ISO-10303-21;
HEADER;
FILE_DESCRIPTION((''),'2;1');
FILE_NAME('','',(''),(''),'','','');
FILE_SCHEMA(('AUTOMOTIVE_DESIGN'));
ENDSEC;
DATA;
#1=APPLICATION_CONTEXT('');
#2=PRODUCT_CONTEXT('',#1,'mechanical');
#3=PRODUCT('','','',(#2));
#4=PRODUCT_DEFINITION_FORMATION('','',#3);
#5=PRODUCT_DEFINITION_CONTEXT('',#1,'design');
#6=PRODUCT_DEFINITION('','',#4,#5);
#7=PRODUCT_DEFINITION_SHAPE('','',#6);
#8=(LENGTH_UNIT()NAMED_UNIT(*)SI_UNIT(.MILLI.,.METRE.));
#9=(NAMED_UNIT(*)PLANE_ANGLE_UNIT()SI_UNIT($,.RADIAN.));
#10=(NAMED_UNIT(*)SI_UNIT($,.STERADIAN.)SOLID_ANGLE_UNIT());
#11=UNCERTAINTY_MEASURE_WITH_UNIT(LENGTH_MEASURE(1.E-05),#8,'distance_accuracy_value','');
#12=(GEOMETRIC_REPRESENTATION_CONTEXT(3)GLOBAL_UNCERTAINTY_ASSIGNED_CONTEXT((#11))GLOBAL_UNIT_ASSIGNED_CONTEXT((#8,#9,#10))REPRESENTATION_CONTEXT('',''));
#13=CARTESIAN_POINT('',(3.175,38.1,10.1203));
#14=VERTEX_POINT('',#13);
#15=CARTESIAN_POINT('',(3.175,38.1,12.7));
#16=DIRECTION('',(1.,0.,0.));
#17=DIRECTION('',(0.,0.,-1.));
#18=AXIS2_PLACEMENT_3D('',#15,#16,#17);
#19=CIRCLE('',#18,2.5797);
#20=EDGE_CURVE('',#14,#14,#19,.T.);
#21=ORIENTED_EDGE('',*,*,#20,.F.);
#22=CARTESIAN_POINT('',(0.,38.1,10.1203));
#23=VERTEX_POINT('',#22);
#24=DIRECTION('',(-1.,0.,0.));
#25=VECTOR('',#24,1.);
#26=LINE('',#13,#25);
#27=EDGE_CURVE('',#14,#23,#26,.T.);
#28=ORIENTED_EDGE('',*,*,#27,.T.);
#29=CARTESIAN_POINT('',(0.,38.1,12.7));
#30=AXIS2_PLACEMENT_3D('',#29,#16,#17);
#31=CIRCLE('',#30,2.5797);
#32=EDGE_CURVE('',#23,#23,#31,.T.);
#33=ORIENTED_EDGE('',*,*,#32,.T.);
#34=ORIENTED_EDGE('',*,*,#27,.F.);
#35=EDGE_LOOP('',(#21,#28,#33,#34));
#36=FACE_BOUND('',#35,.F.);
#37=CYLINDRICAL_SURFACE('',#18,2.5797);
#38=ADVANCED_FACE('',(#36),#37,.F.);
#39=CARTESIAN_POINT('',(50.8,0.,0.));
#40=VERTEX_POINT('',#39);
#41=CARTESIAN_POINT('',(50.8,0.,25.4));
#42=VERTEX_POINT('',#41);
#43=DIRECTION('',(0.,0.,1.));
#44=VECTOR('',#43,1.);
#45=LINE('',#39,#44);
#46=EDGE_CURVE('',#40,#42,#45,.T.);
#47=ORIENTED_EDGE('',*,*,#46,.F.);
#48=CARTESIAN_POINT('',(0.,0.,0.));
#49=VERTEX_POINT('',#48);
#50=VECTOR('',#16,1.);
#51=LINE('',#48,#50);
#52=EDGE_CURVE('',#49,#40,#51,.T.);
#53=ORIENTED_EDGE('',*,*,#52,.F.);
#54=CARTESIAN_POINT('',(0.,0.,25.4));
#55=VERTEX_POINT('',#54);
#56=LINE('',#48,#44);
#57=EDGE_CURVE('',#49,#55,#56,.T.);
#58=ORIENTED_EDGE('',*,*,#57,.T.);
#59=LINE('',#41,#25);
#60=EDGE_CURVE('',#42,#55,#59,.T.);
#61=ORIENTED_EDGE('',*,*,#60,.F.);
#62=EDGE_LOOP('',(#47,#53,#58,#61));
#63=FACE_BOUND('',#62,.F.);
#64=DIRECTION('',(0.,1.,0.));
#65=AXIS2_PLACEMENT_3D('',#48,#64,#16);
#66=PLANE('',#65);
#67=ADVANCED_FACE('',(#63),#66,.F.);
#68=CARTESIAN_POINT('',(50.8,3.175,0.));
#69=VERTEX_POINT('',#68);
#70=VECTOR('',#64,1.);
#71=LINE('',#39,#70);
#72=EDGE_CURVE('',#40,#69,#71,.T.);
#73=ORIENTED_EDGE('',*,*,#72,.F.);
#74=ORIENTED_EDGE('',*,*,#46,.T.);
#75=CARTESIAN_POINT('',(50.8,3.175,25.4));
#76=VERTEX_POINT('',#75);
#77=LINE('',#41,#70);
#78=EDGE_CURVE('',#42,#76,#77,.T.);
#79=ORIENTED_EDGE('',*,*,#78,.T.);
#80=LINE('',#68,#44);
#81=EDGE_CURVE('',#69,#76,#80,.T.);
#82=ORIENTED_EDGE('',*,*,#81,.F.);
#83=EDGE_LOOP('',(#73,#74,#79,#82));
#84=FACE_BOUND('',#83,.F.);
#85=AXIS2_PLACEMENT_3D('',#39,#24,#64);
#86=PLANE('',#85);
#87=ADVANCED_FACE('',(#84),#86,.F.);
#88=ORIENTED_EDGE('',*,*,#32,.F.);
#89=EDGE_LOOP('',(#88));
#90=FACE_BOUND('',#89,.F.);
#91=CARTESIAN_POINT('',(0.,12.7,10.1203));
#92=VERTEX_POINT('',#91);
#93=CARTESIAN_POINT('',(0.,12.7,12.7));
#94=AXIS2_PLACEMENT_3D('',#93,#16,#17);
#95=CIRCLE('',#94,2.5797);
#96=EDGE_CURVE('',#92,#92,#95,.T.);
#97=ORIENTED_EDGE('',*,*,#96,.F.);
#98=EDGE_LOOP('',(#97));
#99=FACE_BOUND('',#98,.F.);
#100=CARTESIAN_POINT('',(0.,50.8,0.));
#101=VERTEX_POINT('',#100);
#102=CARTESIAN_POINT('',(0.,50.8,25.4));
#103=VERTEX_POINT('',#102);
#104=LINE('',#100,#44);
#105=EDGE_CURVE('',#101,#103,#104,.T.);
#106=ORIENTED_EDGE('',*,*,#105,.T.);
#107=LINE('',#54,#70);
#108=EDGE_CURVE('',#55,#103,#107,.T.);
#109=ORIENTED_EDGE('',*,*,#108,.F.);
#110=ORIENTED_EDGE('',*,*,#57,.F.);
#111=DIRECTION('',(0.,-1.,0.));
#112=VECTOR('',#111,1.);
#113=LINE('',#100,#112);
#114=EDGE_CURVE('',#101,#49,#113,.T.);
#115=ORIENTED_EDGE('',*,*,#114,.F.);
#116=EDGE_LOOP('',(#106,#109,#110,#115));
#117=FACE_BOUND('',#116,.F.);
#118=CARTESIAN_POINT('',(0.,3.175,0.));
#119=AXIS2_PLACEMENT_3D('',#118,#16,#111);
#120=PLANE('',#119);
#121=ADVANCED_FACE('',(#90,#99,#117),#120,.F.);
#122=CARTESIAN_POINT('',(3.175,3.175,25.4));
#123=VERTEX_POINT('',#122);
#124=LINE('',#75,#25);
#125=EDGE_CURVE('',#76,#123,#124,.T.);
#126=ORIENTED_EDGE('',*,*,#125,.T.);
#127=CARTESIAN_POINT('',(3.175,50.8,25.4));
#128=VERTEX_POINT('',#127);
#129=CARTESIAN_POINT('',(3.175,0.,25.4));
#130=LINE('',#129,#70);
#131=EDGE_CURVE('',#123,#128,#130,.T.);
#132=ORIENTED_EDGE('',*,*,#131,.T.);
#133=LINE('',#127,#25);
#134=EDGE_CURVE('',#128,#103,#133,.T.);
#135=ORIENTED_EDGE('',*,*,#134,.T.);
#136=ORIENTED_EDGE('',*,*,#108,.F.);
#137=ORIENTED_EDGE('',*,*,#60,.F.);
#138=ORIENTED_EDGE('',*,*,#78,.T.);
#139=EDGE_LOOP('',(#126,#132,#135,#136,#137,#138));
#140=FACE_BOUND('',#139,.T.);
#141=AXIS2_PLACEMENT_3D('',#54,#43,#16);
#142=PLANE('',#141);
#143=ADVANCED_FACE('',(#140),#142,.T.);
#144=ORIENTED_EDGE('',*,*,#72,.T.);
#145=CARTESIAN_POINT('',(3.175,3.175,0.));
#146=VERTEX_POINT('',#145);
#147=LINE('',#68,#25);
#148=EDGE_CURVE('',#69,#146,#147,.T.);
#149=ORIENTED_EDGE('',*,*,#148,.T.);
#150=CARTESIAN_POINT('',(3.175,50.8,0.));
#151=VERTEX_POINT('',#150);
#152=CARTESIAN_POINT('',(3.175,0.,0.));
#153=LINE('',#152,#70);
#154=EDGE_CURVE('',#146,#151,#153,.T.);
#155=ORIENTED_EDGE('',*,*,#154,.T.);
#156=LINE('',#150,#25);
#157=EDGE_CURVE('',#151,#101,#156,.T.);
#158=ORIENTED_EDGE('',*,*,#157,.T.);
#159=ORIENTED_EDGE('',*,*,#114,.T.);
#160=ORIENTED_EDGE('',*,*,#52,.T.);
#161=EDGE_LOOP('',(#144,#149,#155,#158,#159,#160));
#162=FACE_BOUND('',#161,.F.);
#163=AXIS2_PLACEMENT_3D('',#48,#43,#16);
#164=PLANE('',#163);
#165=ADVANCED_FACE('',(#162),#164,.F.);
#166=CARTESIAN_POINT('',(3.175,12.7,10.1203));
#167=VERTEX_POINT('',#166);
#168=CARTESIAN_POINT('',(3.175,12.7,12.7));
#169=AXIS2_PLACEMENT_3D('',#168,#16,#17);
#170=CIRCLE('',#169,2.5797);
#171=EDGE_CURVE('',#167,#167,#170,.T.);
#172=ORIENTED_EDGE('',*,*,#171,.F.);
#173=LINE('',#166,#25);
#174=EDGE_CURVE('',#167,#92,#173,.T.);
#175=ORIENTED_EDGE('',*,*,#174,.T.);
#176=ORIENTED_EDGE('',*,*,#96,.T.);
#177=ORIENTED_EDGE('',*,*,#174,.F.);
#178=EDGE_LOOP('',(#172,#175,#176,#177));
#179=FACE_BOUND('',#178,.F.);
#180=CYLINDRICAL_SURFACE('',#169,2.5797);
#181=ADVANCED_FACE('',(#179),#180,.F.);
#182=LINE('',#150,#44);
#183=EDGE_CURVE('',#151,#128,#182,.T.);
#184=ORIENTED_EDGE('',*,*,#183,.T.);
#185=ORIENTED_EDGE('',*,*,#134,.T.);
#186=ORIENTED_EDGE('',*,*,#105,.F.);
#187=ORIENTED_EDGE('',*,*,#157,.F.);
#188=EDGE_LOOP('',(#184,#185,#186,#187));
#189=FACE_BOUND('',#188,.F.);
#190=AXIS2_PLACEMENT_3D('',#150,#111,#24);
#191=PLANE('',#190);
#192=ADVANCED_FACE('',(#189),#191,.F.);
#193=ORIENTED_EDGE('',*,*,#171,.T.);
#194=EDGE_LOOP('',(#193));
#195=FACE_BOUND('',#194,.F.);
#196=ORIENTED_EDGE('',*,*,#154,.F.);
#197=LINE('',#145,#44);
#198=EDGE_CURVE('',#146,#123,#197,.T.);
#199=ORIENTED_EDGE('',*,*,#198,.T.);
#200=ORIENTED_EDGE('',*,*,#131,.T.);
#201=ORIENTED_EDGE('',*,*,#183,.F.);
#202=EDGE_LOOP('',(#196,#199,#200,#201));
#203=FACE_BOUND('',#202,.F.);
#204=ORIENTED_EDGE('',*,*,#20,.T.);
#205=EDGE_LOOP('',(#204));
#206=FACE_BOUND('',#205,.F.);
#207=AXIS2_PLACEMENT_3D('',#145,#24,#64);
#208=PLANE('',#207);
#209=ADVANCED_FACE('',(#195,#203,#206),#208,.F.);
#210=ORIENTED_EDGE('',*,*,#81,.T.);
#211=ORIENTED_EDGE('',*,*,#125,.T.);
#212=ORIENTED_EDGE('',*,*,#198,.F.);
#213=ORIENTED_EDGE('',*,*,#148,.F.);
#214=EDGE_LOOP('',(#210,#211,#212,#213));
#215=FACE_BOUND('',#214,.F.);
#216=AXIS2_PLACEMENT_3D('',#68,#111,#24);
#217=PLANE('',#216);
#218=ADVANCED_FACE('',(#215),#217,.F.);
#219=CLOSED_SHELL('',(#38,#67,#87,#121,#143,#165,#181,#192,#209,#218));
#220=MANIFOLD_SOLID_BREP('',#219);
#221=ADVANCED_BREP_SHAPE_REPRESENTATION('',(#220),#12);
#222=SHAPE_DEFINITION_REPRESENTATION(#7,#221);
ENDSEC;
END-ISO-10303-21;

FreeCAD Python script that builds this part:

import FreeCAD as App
import Part
import Sketcher
Q = App.Units.Quantity


def add_polygon(sketch, points):
    """Adds a closed chain of lines whose ends are joined by coincident constraints."""
    first, n = sketch.GeometryCount, len(points)
    for a, b in zip(points, points[1:] + points[:1]):
        sketch.addGeometry(Part.LineSegment(App.Vector(*a, 0), App.Vector(*b, 0)), False)
    for i in range(n):
        sketch.addConstraint(Sketcher.Constraint("Coincident", first + i, 2, first + (i + 1) % n, 1))

doc = App.newDocument("Part")
params = doc.addObject("Spreadsheet::Sheet", "Params")
for row, (alias, value) in enumerate([
    ("sketch1_width", "2 in"),
    ("sketch1_width2", "0.125 in"),
    ("pad1_length", "1 in"),
    ("sketch2_diameter", "0.203126 in"),
    ("pocket1_length", "1 in"),
], start=1):
    params.set(f"A{row}", alias)
    params.set(f"B{row}", "=" + value)
    params.setAlias(f"B{row}", alias)

body = doc.addObject("PartDesign::Body", "Body")

sketch1 = body.newObject("Sketcher::SketchObject", "Sketch")
sketch1.AttachmentSupport = (doc.getObject("XY_Plane"), [""])
sketch1.MapMode = "FlatFace"
add_polygon(sketch1, [(0, 0), (50.8, 0), (50.8, 3.2), (3.2, 3.2), (3.2, 50.8), (0, 50.8)])
sketch1.addConstraint([
    Sketcher.Constraint("Horizontal", 0),
    Sketcher.Constraint("Vertical", 1),
    Sketcher.Constraint("Horizontal", 2),
    Sketcher.Constraint("Vertical", 3),
    Sketcher.Constraint("Horizontal", 4),
    Sketcher.Constraint("Vertical", 5),
    Sketcher.Constraint("Coincident", 5, 2, -1, 1),
    Sketcher.Constraint("Equal", 4, 1),
    Sketcher.Constraint("Equal", 2, 3),
    Sketcher.Constraint("DistanceX", 0, 1, 0, 2, Q("2 in")),
    Sketcher.Constraint("DistanceX", 4, 2, 4, 1, Q("0.125 in")),
])
sketch1.setExpression("Constraints[15]", "Params.sketch1_width")
sketch1.setExpression("Constraints[16]", "Params.sketch1_width2")
pad1 = body.newObject("PartDesign::Pad", "Pad")
pad1.Profile = sketch1
pad1.setExpression("Length", "Params.pad1_length")

sketch2 = body.newObject("Sketcher::SketchObject", "Sketch001")
sketch2.AttachmentSupport = (doc.getObject("YZ_Plane"), [""])
sketch2.MapMode = "FlatFace"
sketch2.AttachmentOffset = App.Placement(App.Vector(0, 0, 0.125 * 25.4), App.Rotation())
sketch2.addGeometry([
    Part.Circle(App.Vector(38.1, 12.7, 0), App.Vector(0, 0, 1), 2.6),
    Part.Circle(App.Vector(12.7, 12.7, 0), App.Vector(0, 0, 1), 2.6),
], False)
sketch2.addConstraint([
    Sketcher.Constraint("Equal", 0, 1),
    Sketcher.Constraint("Horizontal", 0, 3, 1, 3),
    Sketcher.Constraint("Diameter", 0, Q("0.203126 in")),
    Sketcher.Constraint("DistanceX", 1, 3, 0, 3, Q("1 in")),
    Sketcher.Constraint("DistanceY", -1, 1, 0, 3, Q("0.5 in")),
    Sketcher.Constraint("DistanceX", -1, 1, 1, 3, Q("0.5 in")),
])
sketch2.setExpression("Constraints[2]", "Params.sketch2_diameter")
pocket1 = body.newObject("PartDesign::Pocket", "Pocket")
pocket1.Profile = sketch2
pocket1.setExpression("Length", "Params.pocket1_length")

doc.recompute()
